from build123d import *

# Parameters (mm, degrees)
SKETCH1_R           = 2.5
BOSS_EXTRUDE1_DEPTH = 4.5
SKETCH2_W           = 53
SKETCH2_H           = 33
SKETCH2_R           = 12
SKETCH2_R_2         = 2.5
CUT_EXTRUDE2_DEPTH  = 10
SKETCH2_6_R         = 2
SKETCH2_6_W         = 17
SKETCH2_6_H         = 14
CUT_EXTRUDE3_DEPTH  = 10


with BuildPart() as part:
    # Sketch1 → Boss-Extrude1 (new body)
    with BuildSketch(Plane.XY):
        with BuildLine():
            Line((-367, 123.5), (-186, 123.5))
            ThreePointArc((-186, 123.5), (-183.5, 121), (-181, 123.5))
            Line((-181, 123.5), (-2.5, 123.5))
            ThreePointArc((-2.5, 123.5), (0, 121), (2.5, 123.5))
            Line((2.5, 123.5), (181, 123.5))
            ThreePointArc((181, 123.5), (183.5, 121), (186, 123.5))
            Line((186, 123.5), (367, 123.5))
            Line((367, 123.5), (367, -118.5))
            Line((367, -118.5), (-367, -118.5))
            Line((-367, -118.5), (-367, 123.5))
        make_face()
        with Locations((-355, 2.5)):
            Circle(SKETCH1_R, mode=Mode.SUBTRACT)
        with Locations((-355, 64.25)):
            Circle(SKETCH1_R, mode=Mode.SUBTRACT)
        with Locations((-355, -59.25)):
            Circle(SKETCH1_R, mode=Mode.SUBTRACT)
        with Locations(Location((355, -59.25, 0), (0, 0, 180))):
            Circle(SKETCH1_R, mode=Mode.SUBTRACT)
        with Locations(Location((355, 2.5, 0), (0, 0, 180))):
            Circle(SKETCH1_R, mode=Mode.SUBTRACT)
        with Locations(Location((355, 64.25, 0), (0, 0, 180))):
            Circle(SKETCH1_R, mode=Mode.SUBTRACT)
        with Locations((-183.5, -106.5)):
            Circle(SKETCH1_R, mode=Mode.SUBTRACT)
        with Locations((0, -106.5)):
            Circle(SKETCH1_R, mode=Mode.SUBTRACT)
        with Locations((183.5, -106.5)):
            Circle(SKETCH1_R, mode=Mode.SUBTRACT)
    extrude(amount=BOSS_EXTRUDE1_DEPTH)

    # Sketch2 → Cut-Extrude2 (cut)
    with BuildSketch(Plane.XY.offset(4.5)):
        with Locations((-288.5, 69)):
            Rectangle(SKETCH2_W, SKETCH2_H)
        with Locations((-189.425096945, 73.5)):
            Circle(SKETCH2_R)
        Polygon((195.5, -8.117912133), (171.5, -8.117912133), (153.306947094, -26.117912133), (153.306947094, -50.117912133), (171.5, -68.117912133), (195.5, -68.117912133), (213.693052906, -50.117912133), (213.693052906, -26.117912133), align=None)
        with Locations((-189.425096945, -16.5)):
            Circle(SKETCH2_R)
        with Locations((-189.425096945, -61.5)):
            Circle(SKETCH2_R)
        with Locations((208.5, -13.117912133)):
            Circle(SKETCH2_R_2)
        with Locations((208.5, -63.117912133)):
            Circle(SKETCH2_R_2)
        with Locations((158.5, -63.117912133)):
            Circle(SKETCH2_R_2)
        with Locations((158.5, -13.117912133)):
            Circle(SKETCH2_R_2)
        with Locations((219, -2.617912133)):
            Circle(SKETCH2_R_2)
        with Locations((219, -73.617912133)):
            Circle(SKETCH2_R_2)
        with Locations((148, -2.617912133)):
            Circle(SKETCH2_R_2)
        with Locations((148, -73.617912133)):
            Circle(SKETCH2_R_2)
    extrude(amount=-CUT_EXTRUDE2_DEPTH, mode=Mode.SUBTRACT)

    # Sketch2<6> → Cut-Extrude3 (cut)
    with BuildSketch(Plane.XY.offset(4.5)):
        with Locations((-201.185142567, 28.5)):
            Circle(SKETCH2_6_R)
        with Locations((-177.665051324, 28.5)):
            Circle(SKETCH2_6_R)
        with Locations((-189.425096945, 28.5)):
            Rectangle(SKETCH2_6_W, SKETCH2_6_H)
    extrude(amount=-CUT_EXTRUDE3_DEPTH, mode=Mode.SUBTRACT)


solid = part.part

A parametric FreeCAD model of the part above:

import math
import FreeCAD as App
import Part
import Sketcher
Q = App.Units.Quantity


def add_polygon(sketch, points):
    """Adds a closed chain of lines whose ends are joined by coincident constraints."""
    first, n = sketch.GeometryCount, len(points)
    for a, b in zip(points, points[1:] + points[:1]):
        sketch.addGeometry(Part.LineSegment(App.Vector(*a, 0), App.Vector(*b, 0)), False)
    for i in range(n):
        sketch.addConstraint(Sketcher.Constraint("Coincident", first + i, 2, first + (i + 1) % n, 1))

doc = App.newDocument("Part")
params = doc.addObject("Spreadsheet::Sheet", "Params")
for row, (alias, value) in enumerate([
    ("sketch1_diameter", "5 mm"),
    ("sketch1_width", "181 mm"),
    ("sketch1_width2", "734 mm"),
    ("sketch1_height", "242 mm"),
    ("pad1_length", "4.5 mm"),
    ("sketch2_diameter", "24 mm"),
    ("sketch2_diameter2", "5 mm"),
    ("sketch2_width", "53 mm"),
    ("sketch2_width2", "24 mm"),
    ("sketch2_height", "33 mm"),
    ("pocket1_length", "10 mm"),
    ("sketch3_diameter", "4 mm"),
    ("sketch3_width", "17 mm"),
    ("sketch3_height", "14 mm"),
    ("pocket2_length", "10 mm"),
], start=1):
    params.set(f"A{row}", alias)
    params.set(f"B{row}", "=" + value)
    params.setAlias(f"B{row}", alias)

body = doc.addObject("PartDesign::Body", "Body")

# Sketch on XY plane
sketch1 = body.newObject("Sketcher::SketchObject", "Sketch")
sketch1.AttachmentSupport = (doc.getObject("XY_Plane"), [""])
sketch1.MapMode = "FlatFace"
sketch1.addGeometry(Part.LineSegment(App.Vector(-186, 123.5, 0), App.Vector(-367, 123.5, 0)), False)
sketch1.addGeometry(Part.LineSegment(App.Vector(-367, 123.5, 0), App.Vector(-367, -118.5, 0)), False)
sketch1.addGeometry(Part.LineSegment(App.Vector(-367, -118.5, 0), App.Vector(367, -118.5, 0)), False)
sketch1.addGeometry(Part.LineSegment(App.Vector(367, -118.5, 0), App.Vector(367, 123.5, 0)), False)
sketch1.addGeometry(Part.LineSegment(App.Vector(367, 123.5, 0), App.Vector(186, 123.5, 0)), False)
sketch1.addGeometry(Part.ArcOfCircle(Part.Circle(App.Vector(183.5, 123.5, 0), App.Vector(0, 0, 1), 2.5), math.radians(180), math.radians(360)), False)
sketch1.addGeometry(Part.LineSegment(App.Vector(181, 123.5, 0), App.Vector(2.5, 123.5, 0)), False)
sketch1.addGeometry(Part.ArcOfCircle(Part.Circle(App.Vector(0, 123.5, 0), App.Vector(0, 0, 1), 2.5), math.radians(180), math.radians(360)), False)
sketch1.addGeometry(Part.LineSegment(App.Vector(-2.5, 123.5, 0), App.Vector(-181, 123.5, 0)), False)
sketch1.addGeometry(Part.ArcOfCircle(Part.Circle(App.Vector(-183.5, 123.5, 0), App.Vector(0, 0, 1), 2.5), math.radians(180), math.radians(360)), False)
sketch1.addGeometry(Part.Circle(App.Vector(183.5, -106.5, 0), App.Vector(0, 0, 1), 2.5), False)
sketch1.addGeometry(Part.Circle(App.Vector(355, -59.25, 0), App.Vector(0, 0, 1), 2.5), False)
sketch1.addGeometry(Part.Circle(App.Vector(0, -106.5, 0), App.Vector(0, 0, 1), 2.5), False)
sketch1.addGeometry(Part.Circle(App.Vector(-183.5, -106.5, 0), App.Vector(0, 0, 1), 2.5), False)
sketch1.addGeometry(Part.Circle(App.Vector(-355, -59.25, 0), App.Vector(0, 0, 1), 2.5), False)
sketch1.addGeometry(Part.Circle(App.Vector(355, 2.5, 0), App.Vector(0, 0, 1), 2.5), False)
sketch1.addGeometry(Part.Circle(App.Vector(355, 64.25, 0), App.Vector(0, 0, 1), 2.5), False)
sketch1.addGeometry(Part.Circle(App.Vector(-355, 2.5, 0), App.Vector(0, 0, 1), 2.5), False)
sketch1.addGeometry(Part.Circle(App.Vector(-355, 64.25, 0), App.Vector(0, 0, 1), 2.5), False)
sketch1.addConstraint(Sketcher.Constraint("Coincident", 0, 2, 1, 1))
sketch1.addConstraint(Sketcher.Constraint("Coincident", 1, 2, 2, 1))
sketch1.addConstraint(Sketcher.Constraint("Coincident", 2, 2, 3, 1))
sketch1.addConstraint(Sketcher.Constraint("Coincident", 3, 2, 4, 1))
sketch1.addConstraint(Sketcher.Constraint("Coincident", 4, 2, 5, 2))
sketch1.addConstraint(Sketcher.Constraint("Coincident", 5, 1, 6, 1))
sketch1.addConstraint(Sketcher.Constraint("Coincident", 6, 2, 7, 2))
sketch1.addConstraint(Sketcher.Constraint("Coincident", 7, 1, 8, 1))
sketch1.addConstraint(Sketcher.Constraint("Coincident", 8, 2, 9, 2))
sketch1.addConstraint(Sketcher.Constraint("Coincident", 9, 1, 0, 1))
sketch1.addConstraint(Sketcher.Constraint("Horizontal", 0))
sketch1.addConstraint(Sketcher.Constraint("Vertical", 1))
sketch1.addConstraint(Sketcher.Constraint("Horizontal", 2))
sketch1.addConstraint(Sketcher.Constraint("Vertical", 3))
sketch1.addConstraint(Sketcher.Constraint("Horizontal", 4))
sketch1.addConstraint(Sketcher.Constraint("Horizontal", 6))
sketch1.addConstraint(Sketcher.Constraint("Horizontal", 8))
sketch1.addConstraint(Sketcher.Constraint("Equal", 5, 7))
sketch1.addConstraint(Sketcher.Constraint("Equal", 7, 9))
sketch1.addConstraint(Sketcher.Constraint("Equal", 9, 10))
sketch1.addConstraint(Sketcher.Constraint("Equal", 10, 11))
sketch1.addConstraint(Sketcher.Constraint("Equal", 11, 12))
sketch1.addConstraint(Sketcher.Constraint("Equal", 12, 13))
sketch1.addConstraint(Sketcher.Constraint("Equal", 13, 14))
sketch1.addConstraint(Sketcher.Constraint("Equal", 14, 15))
sketch1.addConstraint(Sketcher.Constraint("Equal", 15, 16))
sketch1.addConstraint(Sketcher.Constraint("Equal", 16, 17))
sketch1.addConstraint(Sketcher.Constraint("Equal", 17, 18))
sketch1.addConstraint(Sketcher.Constraint("Symmetric", 5, 3, 9, 3, -2))
sketch1.addConstraint(Sketcher.Constraint("Symmetric", 10, 3, 13, 3, -2))
sketch1.addConstraint(Sketcher.Constraint("Symmetric", 11, 3, 14, 3, -2))
sketch1.addConstraint(Sketcher.Constraint("Symmetric", 15, 3, 17, 3, -2))
sketch1.addConstraint(Sketcher.Constraint("Symmetric", 16, 3, 18, 3, -2))
sketch1.addConstraint(Sketcher.Constraint("Symmetric", 0, 2, 3, 2, -2))
sketch1.addConstraint(Sketcher.Constraint("Symmetric", 6, 2, 7, 1, -2))
sketch1.addConstraint(Sketcher.Constraint("PointOnObject", 12, 3, -2))
sketch1.addConstraint(Sketcher.Constraint("Horizontal", 5, 3, 7, 3))
sketch1.addConstraint(Sketcher.Constraint("Horizontal", 10, 3, 12, 3))
sketch1.addConstraint(Sketcher.Constraint("Horizontal", 9, 3, 0, 2))
sketch1.addConstraint(Sketcher.Constraint("Horizontal", 4, 2, 5, 1))
sketch1.addConstraint(Sketcher.Constraint("Vertical", 5, 3, 10, 3))
sketch1.addConstraint(Sketcher.Constraint("Vertical", 11, 3, 15, 3))
sketch1.addConstraint(Sketcher.Constraint("Vertical", 15, 3, 16, 3))
sketch1.addConstraint(Sketcher.Constraint("Diameter", 10, Q("5 mm")))
sketch1.addConstraint(Sketcher.Constraint("DistanceX", 0, 2, 0, 1, Q("181 mm")))
sketch1.addConstraint(Sketcher.Constraint("DistanceX", 2, 1, 2, 2, Q("734 mm")))
sketch1.addConstraint(Sketcher.Constraint("DistanceY", 1, 2, 1, 1, Q("242 mm")))
sketch1.addConstraint(Sketcher.Constraint("DistanceX", -1, 1, 11, 3, Q("355 mm")))
sketch1.addConstraint(Sketcher.Constraint("DistanceY", 10, 3, 5, 3, Q("230 mm")))
sketch1.addConstraint(Sketcher.Constraint("DistanceY", 10, 3, 15, 3, Q("109 mm")))
sketch1.addConstraint(Sketcher.Constraint("DistanceY", -1, 1, 5, 3, Q("123.5 mm")))
sketch1.addConstraint(Sketcher.Constraint("DistanceY", 11, 3, 16, 3, Q("123.5 mm")))
sketch1.addConstraint(Sketcher.Constraint("DistanceY", 11, 3, -1, 1, Q("59.25 mm")))
sketch1.setExpression("Constraints[43]", "Params.sketch1_diameter")
sketch1.setExpression("Constraints[44]", "Params.sketch1_width")
sketch1.setExpression("Constraints[45]", "Params.sketch1_width2")
sketch1.setExpression("Constraints[46]", "Params.sketch1_height")
pad1 = body.newObject("PartDesign::Pad", "Pad")
pad1.Profile = sketch1
pad1.setExpression("Length", "Params.pad1_length")

# Sketch on XY plane
sketch2 = body.newObject("Sketcher::SketchObject", "Sketch001")
sketch2.AttachmentSupport = (doc.getObject("XY_Plane"), [""])
sketch2.MapMode = "FlatFace"
sketch2.AttachmentOffset = App.Placement(App.Vector(0, 0, 4.5), App.Rotation())
add_polygon(sketch2, [(-315, 85.5), (-315, 52.5), (-262, 52.5), (-262, 85.5)])  # lines 0-3
sketch2.addGeometry(Part.Circle(App.Vector(-189.425097, 73.5, 0), App.Vector(0, 0, 1), 12), False)  # 4
add_polygon(sketch2, [(195.5, -8.117912), (171.5, -8.117912), (153.306947, -26.117912), (153.306947, -50.117912), (171.5, -68.117912), (195.5, -68.117912), (213.693053, -50.117912), (213.693053, -26.117912)])  # lines 5-12
sketch2.addGeometry(Part.Circle(App.Vector(-189.425097, -16.5, 0), App.Vector(0, 0, 1), 12), False)  # 13
sketch2.addGeometry(Part.Circle(App.Vector(-189.425097, -61.5, 0), App.Vector(0, 0, 1), 12), False)  # 14
sketch2.addGeometry(Part.Circle(App.Vector(208.5, -13.117912, 0), App.Vector(0, 0, 1), 2.5), False)  # 15
sketch2.addGeometry(Part.Circle(App.Vector(208.5, -63.117912, 0), App.Vector(0, 0, 1), 2.5), False)  # 16
sketch2.addGeometry(Part.Circle(App.Vector(158.5, -63.117912, 0), App.Vector(0, 0, 1), 2.5), False)  # 17
sketch2.addGeometry(Part.Circle(App.Vector(158.5, -13.117912, 0), App.Vector(0, 0, 1), 2.5), False)  # 18
sketch2.addGeometry(Part.Circle(App.Vector(219, -2.617912, 0), App.Vector(0, 0, 1), 2.5), False)  # 19
sketch2.addGeometry(Part.Circle(App.Vector(219, -73.617912, 0), App.Vector(0, 0, 1), 2.5), False)  # 20
sketch2.addGeometry(Part.Circle(App.Vector(148, -2.617912, 0), App.Vector(0, 0, 1), 2.5), False)  # 21
sketch2.addGeometry(Part.Circle(App.Vector(148, -73.617912, 0), App.Vector(0, 0, 1), 2.5), False)  # 22
sketch2.addConstraint(Sketcher.Constraint("Vertical", 0))
sketch2.addConstraint(Sketcher.Constraint("Horizontal", 1))
sketch2.addConstraint(Sketcher.Constraint("Vertical", 2))
sketch2.addConstraint(Sketcher.Constraint("Horizontal", 3))
sketch2.addConstraint(Sketcher.Constraint("Horizontal", 5))
sketch2.addConstraint(Sketcher.Constraint("Vertical", 7))
sketch2.addConstraint(Sketcher.Constraint("Horizontal", 9))
sketch2.addConstraint(Sketcher.Constraint("Vertical", 11))
sketch2.addConstraint(Sketcher.Constraint("Equal", 4, 13))
sketch2.addConstraint(Sketcher.Constraint("Equal", 13, 14))
sketch2.addConstraint(Sketcher.Constraint("Equal", 15, 16))
sketch2.addConstraint(Sketcher.Constraint("Equal", 16, 17))
sketch2.addConstraint(Sketcher.Constraint("Equal", 17, 18))
sketch2.addConstraint(Sketcher.Constraint("Equal", 18, 19))
sketch2.addConstraint(Sketcher.Constraint("Equal", 19, 20))
sketch2.addConstraint(Sketcher.Constraint("Equal", 20, 21))
sketch2.addConstraint(Sketcher.Constraint("Equal", 21, 22))
sketch2.addConstraint(Sketcher.Constraint("Parallel", 6, 10))
sketch2.addConstraint(Sketcher.Constraint("Parallel", 8, 12))
sketch2.addConstraint(Sketcher.Constraint("Horizontal", 16, 3, 17, 3))
sketch2.addConstraint(Sketcher.Constraint("Horizontal", 15, 3, 18, 3))
sketch2.addConstraint(Sketcher.Constraint("Horizontal", 19, 3, 21, 3))
sketch2.addConstraint(Sketcher.Constraint("Horizontal", 20, 3, 22, 3))
sketch2.addConstraint(Sketcher.Constraint("Horizontal", 7, 2, 10, 2))
sketch2.addConstraint(Sketcher.Constraint("Horizontal", 6, 2, 11, 2))
sketch2.addConstraint(Sketcher.Constraint("Vertical", 4, 3, 13, 3))
sketch2.addConstraint(Sketcher.Constraint("Vertical", 13, 3, 14, 3))
sketch2.addConstraint(Sketcher.Constraint("Vertical", 15, 3, 16, 3))
sketch2.addConstraint(Sketcher.Constraint("Vertical", 17, 3, 18, 3))
sketch2.addConstraint(Sketcher.Constraint("Vertical", 19, 3, 20, 3))
sketch2.addConstraint(Sketcher.Constraint("Vertical", 21, 3, 22, 3))
sketch2.addConstraint(Sketcher.Constraint("Vertical", 5, 2, 8, 2))
sketch2.addConstraint(Sketcher.Constraint("Vertical", 9, 2, 12, 2))
sketch2.addConstraint(Sketcher.Constraint("Equal", 9, 7))
sketch2.addConstraint(Sketcher.Constraint("Diameter", 4, Q("24 mm")))
sketch2.addConstraint(Sketcher.Constraint("Diameter", 15, Q("5 mm")))
sketch2.addConstraint(Sketcher.Constraint("DistanceX", 1, 1, 1, 2, Q("53 mm")))
sketch2.addConstraint(Sketcher.Constraint("DistanceX", 5, 2, 5, 1, Q("24 mm")))
sketch2.addConstraint(Sketcher.Constraint("DistanceY", 0, 2, 0, 1, Q("33 mm")))
sketch2.addConstraint(Sketcher.Constraint("DistanceX", -1, 1, 19, 3, Q("219 mm")))
sketch2.addConstraint(Sketcher.Constraint("DistanceX", -1, 1, 21, 3, Q("148 mm")))
sketch2.addConstraint(Sketcher.Constraint("DistanceX", 0, 2, -1, 1, Q("315 mm")))
sketch2.addConstraint(Sketcher.Constraint("DistanceY", 13, 3, 4, 3, Q("90 mm")))
sketch2.addConstraint(Sketcher.Constraint("DistanceY", 14, 3, 13, 3, Q("45 mm")))
sketch2.addConstraint(Sketcher.Constraint("DistanceY", 16, 3, 15, 3, Q("50 mm")))
sketch2.addConstraint(Sketcher.Constraint("DistanceX", 17, 3, 16, 3, Q("50 mm")))
sketch2.addConstraint(Sketcher.Constraint("DistanceY", 20, 3, 19, 3, Q("71 mm")))
sketch2.addConstraint(Sketcher.Constraint("DistanceY", 0, 2, 4, 3, Q("21 mm")))
sketch2.addConstraint(Sketcher.Constraint("DistanceX", 18, 3, 5, 2, Q("13 mm")))
sketch2.addConstraint(Sketcher.Constraint("DistanceY", 18, 3, 5, 2, Q("5 mm")))
sketch2.addConstraint(Sketcher.Constraint("DistanceY", 6, 2, 18, 3, Q("13 mm")))
sketch2.addConstraint(Sketcher.Constraint("DistanceY", -1, 1, 4, 3, Q("73.5 mm")))
sketch2.addConstraint(Sketcher.Constraint("DistanceX", -1, 1, 15, 3, Q("208.5 mm")))
sketch2.addConstraint(Sketcher.Constraint("DistanceY", 15, 3, 19, 3, Q("10.5 mm")))
sketch2.addConstraint(Sketcher.Constraint("Distance", 6, Q("25.592717 mm")))
sketch2.addConstraint(Sketcher.Constraint("DistanceX", 4, 3, -1, 1, Q("189.425097 mm")))
sketch2.addConstraint(Sketcher.Constraint("DistanceY", 15, 3, -1, 1, Q("13.117912 mm")))
sketch2.setExpression("Constraints[46]", "Params.sketch2_diameter")
sketch2.setExpression("Constraints[47]", "Params.sketch2_diameter2")
sketch2.setExpression("Constraints[48]", "Params.sketch2_width")
sketch2.setExpression("Constraints[49]", "Params.sketch2_width2")
sketch2.setExpression("Constraints[50]", "Params.sketch2_height")
pocket1 = body.newObject("PartDesign::Pocket", "Pocket")
pocket1.Profile = sketch2
pocket1.setExpression("Length", "Params.pocket1_length")

# Sketch on XY plane
sketch3 = body.newObject("Sketcher::SketchObject", "Sketch002")
sketch3.AttachmentSupport = (doc.getObject("XY_Plane"), [""])
sketch3.MapMode = "FlatFace"
sketch3.AttachmentOffset = App.Placement(App.Vector(0, 0, 4.5), App.Rotation())
sketch3.addGeometry(Part.Circle(App.Vector(-201.185143, 28.5, 0), App.Vector(0, 0, 1), 2), False)  # 0
sketch3.addGeometry(Part.Circle(App.Vector(-177.665051, 28.5, 0), App.Vector(0, 0, 1), 2), False)  # 1
add_polygon(sketch3, [(-197.925097, 35.5), (-197.925097, 21.5), (-180.925097, 21.5), (-180.925097, 35.5)])  # lines 2-5
sketch3.addConstraint(Sketcher.Constraint("Vertical", 2))
sketch3.addConstraint(Sketcher.Constraint("Horizontal", 3))
sketch3.addConstraint(Sketcher.Constraint("Vertical", 4))
sketch3.addConstraint(Sketcher.Constraint("Horizontal", 5))
sketch3.addConstraint(Sketcher.Constraint("Equal", 0, 1))
sketch3.addConstraint(Sketcher.Constraint("Horizontal", 0, 3, 1, 3))
sketch3.addConstraint(Sketcher.Constraint("Diameter", 0, Q("4 mm")))
sketch3.addConstraint(Sketcher.Constraint("DistanceX", 3, 1, 3, 2, Q("17 mm")))
sketch3.addConstraint(Sketcher.Constraint("DistanceY", 2, 2, 2, 1, Q("14 mm")))
sketch3.addConstraint(Sketcher.Constraint("DistanceY", 2, 2, 0, 3, Q("7 mm")))
sketch3.addConstraint(Sketcher.Constraint("DistanceY", -1, 1, 0, 3, Q("28.5 mm")))
sketch3.addConstraint(Sketcher.Constraint("DistanceX", 1, 3, -1, 1, Q("177.665051 mm")))
sketch3.addConstraint(Sketcher.Constraint("DistanceX", 0, 3, 1, 3, Q("23.520091 mm")))
sketch3.addConstraint(Sketcher.Constraint("DistanceX", 2, 2, -1, 1, Q("197.925097 mm")))
sketch3.setExpression("Constraints[10]", "Params.sketch3_diameter")
sketch3.setExpression("Constraints[11]", "Params.sketch3_width")
sketch3.setExpression("Constraints[12]", "Params.sketch3_height")
pocket2 = body.newObject("PartDesign::Pocket", "Pocket001")
pocket2.Profile = sketch3
pocket2.setExpression("Length", "Params.pocket2_length")

doc.recompute()
